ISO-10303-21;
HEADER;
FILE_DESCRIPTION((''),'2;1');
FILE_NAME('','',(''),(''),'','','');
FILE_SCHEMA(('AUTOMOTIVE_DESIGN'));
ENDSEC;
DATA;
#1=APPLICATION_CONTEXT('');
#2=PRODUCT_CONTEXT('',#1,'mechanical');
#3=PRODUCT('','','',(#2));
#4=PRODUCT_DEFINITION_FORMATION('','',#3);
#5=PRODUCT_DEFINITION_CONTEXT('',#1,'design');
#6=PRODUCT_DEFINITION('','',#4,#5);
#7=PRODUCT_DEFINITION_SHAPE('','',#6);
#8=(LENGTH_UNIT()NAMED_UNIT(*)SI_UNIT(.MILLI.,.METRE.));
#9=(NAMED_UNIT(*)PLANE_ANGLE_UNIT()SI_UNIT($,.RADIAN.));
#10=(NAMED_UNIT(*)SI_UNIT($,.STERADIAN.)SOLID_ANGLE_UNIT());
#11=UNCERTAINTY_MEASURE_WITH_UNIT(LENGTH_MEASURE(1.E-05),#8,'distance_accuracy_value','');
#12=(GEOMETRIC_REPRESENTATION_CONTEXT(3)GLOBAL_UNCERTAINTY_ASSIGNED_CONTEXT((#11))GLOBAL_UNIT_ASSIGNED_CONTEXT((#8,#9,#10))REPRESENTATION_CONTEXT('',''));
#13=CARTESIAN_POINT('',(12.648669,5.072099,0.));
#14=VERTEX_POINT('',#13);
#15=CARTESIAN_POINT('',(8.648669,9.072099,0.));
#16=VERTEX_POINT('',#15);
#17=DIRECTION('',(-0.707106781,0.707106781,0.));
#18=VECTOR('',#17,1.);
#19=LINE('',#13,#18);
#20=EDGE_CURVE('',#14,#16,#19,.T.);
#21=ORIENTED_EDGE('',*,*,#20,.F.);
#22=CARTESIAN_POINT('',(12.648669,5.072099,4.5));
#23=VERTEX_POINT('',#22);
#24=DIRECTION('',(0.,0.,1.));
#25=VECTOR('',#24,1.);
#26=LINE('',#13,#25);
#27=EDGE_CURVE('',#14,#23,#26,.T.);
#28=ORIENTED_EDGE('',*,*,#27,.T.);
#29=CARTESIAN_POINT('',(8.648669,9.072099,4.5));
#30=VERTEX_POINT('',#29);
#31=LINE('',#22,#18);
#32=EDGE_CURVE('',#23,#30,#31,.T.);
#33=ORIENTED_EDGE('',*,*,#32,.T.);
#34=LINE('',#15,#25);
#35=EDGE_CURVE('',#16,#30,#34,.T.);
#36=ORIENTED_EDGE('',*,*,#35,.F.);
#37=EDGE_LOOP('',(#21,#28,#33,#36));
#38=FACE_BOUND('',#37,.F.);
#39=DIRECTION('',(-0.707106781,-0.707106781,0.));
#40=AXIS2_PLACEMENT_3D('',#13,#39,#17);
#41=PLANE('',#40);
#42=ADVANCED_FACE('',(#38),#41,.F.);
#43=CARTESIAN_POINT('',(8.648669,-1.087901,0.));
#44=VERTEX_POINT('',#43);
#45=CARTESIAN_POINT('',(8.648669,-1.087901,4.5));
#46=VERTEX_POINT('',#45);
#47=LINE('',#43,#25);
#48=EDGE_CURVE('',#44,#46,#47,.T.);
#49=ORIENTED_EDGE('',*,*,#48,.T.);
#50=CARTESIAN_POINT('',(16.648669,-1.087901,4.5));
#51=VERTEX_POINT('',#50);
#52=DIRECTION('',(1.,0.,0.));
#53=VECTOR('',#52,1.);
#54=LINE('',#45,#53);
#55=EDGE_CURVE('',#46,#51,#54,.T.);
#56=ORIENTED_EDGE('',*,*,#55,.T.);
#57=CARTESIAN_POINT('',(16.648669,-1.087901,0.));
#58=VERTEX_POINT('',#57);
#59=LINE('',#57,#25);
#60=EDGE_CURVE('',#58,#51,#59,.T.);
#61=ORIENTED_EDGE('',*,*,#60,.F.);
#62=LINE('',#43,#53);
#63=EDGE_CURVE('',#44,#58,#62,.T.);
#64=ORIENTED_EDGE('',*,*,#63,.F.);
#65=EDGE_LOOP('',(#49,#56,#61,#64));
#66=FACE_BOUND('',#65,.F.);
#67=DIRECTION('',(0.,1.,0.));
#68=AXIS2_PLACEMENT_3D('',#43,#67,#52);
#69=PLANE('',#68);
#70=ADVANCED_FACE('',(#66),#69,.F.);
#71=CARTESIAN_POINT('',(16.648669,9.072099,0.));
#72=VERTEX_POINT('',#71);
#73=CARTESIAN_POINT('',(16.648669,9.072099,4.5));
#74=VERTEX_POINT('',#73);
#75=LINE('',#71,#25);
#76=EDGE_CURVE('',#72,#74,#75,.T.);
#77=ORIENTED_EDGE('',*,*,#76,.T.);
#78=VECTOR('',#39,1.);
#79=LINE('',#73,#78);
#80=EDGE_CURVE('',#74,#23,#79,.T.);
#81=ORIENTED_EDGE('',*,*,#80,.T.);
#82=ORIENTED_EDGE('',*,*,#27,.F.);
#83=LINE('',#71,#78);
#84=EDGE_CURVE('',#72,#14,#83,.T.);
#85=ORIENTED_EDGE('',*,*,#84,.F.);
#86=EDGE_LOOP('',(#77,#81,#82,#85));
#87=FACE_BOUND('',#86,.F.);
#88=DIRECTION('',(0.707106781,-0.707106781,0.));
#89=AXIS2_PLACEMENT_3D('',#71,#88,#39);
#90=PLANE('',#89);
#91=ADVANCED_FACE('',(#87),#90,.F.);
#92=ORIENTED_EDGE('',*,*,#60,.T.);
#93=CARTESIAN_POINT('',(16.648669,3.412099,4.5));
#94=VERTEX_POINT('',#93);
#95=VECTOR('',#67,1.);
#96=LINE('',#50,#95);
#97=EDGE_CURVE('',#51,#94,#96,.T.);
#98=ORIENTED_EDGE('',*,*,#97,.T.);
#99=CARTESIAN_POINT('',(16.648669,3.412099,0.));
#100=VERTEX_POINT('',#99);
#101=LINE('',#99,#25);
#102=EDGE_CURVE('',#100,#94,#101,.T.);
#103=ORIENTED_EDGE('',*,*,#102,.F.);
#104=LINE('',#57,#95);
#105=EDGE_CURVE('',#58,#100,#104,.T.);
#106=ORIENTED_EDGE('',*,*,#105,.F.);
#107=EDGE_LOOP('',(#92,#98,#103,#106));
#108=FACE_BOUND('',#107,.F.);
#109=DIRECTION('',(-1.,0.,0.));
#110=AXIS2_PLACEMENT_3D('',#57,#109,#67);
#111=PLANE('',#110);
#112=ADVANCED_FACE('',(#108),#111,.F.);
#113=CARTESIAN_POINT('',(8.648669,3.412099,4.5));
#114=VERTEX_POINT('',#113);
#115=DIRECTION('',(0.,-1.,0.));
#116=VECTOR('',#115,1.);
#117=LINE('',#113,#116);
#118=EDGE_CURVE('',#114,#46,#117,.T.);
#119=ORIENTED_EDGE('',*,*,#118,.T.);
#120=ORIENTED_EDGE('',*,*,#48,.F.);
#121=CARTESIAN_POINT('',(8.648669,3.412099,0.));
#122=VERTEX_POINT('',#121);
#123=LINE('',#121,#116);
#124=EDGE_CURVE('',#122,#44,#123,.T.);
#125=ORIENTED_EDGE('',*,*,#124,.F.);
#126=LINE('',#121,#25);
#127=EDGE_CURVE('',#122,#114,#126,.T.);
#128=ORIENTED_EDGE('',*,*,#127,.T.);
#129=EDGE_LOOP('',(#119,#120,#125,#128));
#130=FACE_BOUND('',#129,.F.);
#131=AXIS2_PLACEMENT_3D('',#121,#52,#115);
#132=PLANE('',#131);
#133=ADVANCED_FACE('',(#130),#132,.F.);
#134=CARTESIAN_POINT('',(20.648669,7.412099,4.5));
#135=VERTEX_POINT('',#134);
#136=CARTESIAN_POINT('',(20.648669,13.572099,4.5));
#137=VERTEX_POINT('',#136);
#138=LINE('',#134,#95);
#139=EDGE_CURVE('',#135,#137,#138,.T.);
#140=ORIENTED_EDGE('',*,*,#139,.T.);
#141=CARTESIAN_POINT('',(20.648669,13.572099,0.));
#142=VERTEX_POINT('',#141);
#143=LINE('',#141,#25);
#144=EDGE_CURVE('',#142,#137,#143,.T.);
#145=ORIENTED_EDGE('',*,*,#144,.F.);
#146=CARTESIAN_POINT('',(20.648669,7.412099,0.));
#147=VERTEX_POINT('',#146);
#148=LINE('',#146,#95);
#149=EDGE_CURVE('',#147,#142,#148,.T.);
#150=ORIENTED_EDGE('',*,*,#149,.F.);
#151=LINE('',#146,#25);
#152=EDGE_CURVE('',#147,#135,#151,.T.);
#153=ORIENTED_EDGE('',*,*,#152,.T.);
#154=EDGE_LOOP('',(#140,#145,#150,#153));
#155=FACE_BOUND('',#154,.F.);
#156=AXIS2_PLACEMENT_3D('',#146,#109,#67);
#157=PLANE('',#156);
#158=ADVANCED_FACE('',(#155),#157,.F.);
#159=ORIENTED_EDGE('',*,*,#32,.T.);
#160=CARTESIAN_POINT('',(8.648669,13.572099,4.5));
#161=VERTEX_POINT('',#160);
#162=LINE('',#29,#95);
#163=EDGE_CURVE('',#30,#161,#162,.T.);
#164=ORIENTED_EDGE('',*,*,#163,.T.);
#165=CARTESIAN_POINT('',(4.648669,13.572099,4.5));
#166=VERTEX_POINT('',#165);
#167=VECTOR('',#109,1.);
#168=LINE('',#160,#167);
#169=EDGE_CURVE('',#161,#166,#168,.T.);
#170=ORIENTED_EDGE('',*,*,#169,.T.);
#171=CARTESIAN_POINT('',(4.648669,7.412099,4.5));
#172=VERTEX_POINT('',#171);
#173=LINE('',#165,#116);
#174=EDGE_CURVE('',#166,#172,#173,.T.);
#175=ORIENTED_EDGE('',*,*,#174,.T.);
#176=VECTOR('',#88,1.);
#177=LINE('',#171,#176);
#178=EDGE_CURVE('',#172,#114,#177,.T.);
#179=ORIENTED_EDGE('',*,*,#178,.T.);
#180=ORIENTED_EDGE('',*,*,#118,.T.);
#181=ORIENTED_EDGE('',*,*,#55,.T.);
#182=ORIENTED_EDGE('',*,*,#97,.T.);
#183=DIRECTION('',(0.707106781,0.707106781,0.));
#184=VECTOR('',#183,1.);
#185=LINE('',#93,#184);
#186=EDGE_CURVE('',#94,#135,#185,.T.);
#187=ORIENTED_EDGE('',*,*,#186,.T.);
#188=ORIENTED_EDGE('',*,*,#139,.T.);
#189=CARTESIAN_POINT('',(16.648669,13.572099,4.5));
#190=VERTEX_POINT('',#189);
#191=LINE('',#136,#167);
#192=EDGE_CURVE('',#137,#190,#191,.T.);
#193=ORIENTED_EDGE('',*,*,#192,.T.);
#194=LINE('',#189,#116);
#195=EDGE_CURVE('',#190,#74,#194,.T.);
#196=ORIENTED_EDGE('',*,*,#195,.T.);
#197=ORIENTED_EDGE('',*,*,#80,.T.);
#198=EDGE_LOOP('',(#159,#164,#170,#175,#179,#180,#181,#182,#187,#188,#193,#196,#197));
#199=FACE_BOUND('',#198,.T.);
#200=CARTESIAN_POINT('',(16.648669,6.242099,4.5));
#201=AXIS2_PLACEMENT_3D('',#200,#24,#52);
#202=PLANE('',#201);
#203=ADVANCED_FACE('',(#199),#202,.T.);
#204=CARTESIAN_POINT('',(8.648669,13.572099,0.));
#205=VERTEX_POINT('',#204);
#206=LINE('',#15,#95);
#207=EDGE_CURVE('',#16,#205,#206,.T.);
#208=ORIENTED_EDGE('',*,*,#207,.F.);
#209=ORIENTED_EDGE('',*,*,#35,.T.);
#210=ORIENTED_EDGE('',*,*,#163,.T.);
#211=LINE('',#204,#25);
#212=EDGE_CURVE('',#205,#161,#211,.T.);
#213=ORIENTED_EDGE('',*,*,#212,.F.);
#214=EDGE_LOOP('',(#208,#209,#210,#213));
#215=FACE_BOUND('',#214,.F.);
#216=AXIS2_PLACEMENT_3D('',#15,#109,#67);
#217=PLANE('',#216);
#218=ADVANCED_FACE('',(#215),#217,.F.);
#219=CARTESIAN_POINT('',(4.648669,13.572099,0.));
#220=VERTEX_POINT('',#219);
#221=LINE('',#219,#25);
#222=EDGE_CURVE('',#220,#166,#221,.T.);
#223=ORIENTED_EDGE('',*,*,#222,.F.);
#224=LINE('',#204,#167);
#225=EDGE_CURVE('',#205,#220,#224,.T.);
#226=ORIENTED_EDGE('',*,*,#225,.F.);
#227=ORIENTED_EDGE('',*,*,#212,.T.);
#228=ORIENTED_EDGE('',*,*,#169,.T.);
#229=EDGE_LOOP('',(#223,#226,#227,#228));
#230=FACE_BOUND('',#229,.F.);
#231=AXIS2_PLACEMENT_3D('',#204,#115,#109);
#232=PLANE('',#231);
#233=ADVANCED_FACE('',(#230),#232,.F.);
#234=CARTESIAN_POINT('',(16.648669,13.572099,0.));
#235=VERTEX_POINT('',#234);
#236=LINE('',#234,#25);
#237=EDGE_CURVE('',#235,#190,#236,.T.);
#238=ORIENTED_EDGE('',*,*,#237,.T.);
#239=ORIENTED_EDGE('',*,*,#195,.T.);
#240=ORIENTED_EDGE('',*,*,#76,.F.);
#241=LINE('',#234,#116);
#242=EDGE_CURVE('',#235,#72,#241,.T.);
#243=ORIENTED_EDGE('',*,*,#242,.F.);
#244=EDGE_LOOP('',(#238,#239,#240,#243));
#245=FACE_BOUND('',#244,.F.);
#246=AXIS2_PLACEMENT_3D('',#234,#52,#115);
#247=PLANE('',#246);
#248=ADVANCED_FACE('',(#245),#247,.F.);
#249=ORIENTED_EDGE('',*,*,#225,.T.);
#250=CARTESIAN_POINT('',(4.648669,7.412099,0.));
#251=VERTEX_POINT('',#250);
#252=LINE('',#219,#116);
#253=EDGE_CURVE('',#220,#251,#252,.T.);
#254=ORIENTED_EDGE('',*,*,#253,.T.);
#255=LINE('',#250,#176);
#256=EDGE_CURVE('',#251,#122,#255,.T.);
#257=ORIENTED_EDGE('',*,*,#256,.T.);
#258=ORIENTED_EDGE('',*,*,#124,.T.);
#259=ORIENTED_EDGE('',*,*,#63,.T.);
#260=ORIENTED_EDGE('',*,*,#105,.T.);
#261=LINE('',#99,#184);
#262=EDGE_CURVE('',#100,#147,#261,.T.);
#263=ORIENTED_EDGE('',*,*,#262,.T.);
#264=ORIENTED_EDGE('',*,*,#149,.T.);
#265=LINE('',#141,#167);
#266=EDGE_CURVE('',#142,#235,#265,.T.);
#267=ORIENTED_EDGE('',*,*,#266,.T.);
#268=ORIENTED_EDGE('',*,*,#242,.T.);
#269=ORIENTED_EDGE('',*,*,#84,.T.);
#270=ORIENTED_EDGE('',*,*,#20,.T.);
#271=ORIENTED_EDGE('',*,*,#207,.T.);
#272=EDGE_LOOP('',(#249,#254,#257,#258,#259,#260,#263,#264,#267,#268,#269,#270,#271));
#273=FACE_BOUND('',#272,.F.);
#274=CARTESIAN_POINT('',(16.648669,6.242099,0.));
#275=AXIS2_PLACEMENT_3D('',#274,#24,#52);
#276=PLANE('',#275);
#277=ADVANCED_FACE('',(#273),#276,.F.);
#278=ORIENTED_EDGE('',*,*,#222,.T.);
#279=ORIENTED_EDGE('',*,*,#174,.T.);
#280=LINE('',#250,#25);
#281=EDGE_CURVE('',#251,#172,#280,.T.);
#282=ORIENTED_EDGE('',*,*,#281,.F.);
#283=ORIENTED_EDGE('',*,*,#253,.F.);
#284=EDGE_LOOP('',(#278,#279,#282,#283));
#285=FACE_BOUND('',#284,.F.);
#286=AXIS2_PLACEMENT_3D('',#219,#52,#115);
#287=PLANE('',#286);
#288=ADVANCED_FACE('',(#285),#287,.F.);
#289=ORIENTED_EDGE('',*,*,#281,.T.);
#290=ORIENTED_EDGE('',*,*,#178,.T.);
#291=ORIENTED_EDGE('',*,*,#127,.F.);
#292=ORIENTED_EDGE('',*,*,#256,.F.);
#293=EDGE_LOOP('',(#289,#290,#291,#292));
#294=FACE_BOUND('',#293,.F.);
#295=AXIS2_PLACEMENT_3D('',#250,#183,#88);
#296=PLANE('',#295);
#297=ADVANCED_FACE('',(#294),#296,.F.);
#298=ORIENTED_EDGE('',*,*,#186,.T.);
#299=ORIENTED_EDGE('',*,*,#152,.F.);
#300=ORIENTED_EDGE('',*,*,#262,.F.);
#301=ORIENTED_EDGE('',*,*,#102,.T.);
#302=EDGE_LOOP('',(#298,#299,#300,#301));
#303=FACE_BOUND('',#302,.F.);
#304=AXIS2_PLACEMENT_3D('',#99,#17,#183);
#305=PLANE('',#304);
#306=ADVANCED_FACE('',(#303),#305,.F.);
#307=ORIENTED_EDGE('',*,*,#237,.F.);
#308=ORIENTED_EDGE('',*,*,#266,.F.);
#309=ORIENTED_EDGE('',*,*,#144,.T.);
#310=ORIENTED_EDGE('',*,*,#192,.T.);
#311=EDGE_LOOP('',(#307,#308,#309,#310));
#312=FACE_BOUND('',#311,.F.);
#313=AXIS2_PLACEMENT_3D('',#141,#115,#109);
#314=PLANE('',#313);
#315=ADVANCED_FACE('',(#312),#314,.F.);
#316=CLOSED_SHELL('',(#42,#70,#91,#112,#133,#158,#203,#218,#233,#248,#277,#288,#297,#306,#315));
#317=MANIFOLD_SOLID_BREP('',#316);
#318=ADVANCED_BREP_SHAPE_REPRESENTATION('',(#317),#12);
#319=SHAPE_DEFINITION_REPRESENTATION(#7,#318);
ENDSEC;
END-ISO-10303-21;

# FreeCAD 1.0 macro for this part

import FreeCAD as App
import Part
import Sketcher
Q = App.Units.Quantity


def add_polygon(sketch, points):
    """Adds a closed chain of lines whose ends are joined by coincident constraints."""
    first, n = sketch.GeometryCount, len(points)
    for a, b in zip(points, points[1:] + points[:1]):
        sketch.addGeometry(Part.LineSegment(App.Vector(*a, 0), App.Vector(*b, 0)), False)
    for i in range(n):
        sketch.addConstraint(Sketcher.Constraint("Coincident", first + i, 2, first + (i + 1) % n, 1))

doc = App.newDocument("Part")
body = doc.addObject("PartDesign::Body", "Body")

# Sketch on XY plane
sketch1 = body.newObject("Sketcher::SketchObject", "Sketch")
sketch1.AttachmentSupport = (doc.getObject("XY_Plane"), [""])
sketch1.MapMode = "FlatFace"
add_polygon(sketch1, [(16.648669, -1.087901), (16.648669, 3.412099), (20.648669, 7.412099), (20.648669, 13.572099), (16.648669, 13.572099), (16.648669, 9.072099), (12.648669, 5.072099), (8.648669, 9.072099), (8.648669, 13.572099), (4.648669, 13.572099), (4.648669, 7.412099), (8.648669, 3.412099), (8.648669, -1.087901)])  # lines 0-12
sketch1.addConstraint([
    Sketcher.Constraint("Vertical", 0),
    Sketcher.Constraint("Vertical", 2),
    Sketcher.Constraint("Horizontal", 3),
    Sketcher.Constraint("Vertical", 4),
    Sketcher.Constraint("Vertical", 7),
    Sketcher.Constraint("Horizontal", 8),
    Sketcher.Constraint("Vertical", 9),
    Sketcher.Constraint("Vertical", 11),
    Sketcher.Constraint("Horizontal", 12),
    Sketcher.Constraint("Parallel", 1, 5),
    Sketcher.Constraint("Perpendicular", 5, 6),
    Sketcher.Constraint("Parallel", 6, 10),
    Sketcher.Constraint("Horizontal", 4, 2, 6, 2),
    Sketcher.Constraint("Horizontal", 3, 2, 7, 2),
    Sketcher.Constraint("Horizontal", 1, 2, 9, 2),
    Sketcher.Constraint("Horizontal", 0, 2, 10, 2),
    Sketcher.Constraint("Vertical", 0, 2, 3, 2),
    Sketcher.Constraint("Vertical", 7, 2, 10, 2),
    Sketcher.Constraint("Equal", 3, 8),
    Sketcher.Constraint("Equal", 0, 4),
    Sketcher.Constraint("Equal", 1, 5),
    Sketcher.Constraint("DistanceX", 3, 2, 3, 1, Q("4 mm")),
    Sketcher.Constraint("DistanceY", 0, 1, 0, 2, Q("4.5 mm")),
    Sketcher.Constraint("DistanceY", 2, 1, 2, 2, Q("6.16 mm")),
    Sketcher.Constraint("DistanceY", -1, 1, 0, 2, Q("3.412099 mm")),
    Sketcher.Constraint("DistanceX", -1, 1, 0, 2, Q("16.648669 mm")),
])
pad1 = body.newObject("PartDesign::Pad", "Pad")
pad1.Profile = sketch1
pad1.Length = 4.5

doc.recompute()
